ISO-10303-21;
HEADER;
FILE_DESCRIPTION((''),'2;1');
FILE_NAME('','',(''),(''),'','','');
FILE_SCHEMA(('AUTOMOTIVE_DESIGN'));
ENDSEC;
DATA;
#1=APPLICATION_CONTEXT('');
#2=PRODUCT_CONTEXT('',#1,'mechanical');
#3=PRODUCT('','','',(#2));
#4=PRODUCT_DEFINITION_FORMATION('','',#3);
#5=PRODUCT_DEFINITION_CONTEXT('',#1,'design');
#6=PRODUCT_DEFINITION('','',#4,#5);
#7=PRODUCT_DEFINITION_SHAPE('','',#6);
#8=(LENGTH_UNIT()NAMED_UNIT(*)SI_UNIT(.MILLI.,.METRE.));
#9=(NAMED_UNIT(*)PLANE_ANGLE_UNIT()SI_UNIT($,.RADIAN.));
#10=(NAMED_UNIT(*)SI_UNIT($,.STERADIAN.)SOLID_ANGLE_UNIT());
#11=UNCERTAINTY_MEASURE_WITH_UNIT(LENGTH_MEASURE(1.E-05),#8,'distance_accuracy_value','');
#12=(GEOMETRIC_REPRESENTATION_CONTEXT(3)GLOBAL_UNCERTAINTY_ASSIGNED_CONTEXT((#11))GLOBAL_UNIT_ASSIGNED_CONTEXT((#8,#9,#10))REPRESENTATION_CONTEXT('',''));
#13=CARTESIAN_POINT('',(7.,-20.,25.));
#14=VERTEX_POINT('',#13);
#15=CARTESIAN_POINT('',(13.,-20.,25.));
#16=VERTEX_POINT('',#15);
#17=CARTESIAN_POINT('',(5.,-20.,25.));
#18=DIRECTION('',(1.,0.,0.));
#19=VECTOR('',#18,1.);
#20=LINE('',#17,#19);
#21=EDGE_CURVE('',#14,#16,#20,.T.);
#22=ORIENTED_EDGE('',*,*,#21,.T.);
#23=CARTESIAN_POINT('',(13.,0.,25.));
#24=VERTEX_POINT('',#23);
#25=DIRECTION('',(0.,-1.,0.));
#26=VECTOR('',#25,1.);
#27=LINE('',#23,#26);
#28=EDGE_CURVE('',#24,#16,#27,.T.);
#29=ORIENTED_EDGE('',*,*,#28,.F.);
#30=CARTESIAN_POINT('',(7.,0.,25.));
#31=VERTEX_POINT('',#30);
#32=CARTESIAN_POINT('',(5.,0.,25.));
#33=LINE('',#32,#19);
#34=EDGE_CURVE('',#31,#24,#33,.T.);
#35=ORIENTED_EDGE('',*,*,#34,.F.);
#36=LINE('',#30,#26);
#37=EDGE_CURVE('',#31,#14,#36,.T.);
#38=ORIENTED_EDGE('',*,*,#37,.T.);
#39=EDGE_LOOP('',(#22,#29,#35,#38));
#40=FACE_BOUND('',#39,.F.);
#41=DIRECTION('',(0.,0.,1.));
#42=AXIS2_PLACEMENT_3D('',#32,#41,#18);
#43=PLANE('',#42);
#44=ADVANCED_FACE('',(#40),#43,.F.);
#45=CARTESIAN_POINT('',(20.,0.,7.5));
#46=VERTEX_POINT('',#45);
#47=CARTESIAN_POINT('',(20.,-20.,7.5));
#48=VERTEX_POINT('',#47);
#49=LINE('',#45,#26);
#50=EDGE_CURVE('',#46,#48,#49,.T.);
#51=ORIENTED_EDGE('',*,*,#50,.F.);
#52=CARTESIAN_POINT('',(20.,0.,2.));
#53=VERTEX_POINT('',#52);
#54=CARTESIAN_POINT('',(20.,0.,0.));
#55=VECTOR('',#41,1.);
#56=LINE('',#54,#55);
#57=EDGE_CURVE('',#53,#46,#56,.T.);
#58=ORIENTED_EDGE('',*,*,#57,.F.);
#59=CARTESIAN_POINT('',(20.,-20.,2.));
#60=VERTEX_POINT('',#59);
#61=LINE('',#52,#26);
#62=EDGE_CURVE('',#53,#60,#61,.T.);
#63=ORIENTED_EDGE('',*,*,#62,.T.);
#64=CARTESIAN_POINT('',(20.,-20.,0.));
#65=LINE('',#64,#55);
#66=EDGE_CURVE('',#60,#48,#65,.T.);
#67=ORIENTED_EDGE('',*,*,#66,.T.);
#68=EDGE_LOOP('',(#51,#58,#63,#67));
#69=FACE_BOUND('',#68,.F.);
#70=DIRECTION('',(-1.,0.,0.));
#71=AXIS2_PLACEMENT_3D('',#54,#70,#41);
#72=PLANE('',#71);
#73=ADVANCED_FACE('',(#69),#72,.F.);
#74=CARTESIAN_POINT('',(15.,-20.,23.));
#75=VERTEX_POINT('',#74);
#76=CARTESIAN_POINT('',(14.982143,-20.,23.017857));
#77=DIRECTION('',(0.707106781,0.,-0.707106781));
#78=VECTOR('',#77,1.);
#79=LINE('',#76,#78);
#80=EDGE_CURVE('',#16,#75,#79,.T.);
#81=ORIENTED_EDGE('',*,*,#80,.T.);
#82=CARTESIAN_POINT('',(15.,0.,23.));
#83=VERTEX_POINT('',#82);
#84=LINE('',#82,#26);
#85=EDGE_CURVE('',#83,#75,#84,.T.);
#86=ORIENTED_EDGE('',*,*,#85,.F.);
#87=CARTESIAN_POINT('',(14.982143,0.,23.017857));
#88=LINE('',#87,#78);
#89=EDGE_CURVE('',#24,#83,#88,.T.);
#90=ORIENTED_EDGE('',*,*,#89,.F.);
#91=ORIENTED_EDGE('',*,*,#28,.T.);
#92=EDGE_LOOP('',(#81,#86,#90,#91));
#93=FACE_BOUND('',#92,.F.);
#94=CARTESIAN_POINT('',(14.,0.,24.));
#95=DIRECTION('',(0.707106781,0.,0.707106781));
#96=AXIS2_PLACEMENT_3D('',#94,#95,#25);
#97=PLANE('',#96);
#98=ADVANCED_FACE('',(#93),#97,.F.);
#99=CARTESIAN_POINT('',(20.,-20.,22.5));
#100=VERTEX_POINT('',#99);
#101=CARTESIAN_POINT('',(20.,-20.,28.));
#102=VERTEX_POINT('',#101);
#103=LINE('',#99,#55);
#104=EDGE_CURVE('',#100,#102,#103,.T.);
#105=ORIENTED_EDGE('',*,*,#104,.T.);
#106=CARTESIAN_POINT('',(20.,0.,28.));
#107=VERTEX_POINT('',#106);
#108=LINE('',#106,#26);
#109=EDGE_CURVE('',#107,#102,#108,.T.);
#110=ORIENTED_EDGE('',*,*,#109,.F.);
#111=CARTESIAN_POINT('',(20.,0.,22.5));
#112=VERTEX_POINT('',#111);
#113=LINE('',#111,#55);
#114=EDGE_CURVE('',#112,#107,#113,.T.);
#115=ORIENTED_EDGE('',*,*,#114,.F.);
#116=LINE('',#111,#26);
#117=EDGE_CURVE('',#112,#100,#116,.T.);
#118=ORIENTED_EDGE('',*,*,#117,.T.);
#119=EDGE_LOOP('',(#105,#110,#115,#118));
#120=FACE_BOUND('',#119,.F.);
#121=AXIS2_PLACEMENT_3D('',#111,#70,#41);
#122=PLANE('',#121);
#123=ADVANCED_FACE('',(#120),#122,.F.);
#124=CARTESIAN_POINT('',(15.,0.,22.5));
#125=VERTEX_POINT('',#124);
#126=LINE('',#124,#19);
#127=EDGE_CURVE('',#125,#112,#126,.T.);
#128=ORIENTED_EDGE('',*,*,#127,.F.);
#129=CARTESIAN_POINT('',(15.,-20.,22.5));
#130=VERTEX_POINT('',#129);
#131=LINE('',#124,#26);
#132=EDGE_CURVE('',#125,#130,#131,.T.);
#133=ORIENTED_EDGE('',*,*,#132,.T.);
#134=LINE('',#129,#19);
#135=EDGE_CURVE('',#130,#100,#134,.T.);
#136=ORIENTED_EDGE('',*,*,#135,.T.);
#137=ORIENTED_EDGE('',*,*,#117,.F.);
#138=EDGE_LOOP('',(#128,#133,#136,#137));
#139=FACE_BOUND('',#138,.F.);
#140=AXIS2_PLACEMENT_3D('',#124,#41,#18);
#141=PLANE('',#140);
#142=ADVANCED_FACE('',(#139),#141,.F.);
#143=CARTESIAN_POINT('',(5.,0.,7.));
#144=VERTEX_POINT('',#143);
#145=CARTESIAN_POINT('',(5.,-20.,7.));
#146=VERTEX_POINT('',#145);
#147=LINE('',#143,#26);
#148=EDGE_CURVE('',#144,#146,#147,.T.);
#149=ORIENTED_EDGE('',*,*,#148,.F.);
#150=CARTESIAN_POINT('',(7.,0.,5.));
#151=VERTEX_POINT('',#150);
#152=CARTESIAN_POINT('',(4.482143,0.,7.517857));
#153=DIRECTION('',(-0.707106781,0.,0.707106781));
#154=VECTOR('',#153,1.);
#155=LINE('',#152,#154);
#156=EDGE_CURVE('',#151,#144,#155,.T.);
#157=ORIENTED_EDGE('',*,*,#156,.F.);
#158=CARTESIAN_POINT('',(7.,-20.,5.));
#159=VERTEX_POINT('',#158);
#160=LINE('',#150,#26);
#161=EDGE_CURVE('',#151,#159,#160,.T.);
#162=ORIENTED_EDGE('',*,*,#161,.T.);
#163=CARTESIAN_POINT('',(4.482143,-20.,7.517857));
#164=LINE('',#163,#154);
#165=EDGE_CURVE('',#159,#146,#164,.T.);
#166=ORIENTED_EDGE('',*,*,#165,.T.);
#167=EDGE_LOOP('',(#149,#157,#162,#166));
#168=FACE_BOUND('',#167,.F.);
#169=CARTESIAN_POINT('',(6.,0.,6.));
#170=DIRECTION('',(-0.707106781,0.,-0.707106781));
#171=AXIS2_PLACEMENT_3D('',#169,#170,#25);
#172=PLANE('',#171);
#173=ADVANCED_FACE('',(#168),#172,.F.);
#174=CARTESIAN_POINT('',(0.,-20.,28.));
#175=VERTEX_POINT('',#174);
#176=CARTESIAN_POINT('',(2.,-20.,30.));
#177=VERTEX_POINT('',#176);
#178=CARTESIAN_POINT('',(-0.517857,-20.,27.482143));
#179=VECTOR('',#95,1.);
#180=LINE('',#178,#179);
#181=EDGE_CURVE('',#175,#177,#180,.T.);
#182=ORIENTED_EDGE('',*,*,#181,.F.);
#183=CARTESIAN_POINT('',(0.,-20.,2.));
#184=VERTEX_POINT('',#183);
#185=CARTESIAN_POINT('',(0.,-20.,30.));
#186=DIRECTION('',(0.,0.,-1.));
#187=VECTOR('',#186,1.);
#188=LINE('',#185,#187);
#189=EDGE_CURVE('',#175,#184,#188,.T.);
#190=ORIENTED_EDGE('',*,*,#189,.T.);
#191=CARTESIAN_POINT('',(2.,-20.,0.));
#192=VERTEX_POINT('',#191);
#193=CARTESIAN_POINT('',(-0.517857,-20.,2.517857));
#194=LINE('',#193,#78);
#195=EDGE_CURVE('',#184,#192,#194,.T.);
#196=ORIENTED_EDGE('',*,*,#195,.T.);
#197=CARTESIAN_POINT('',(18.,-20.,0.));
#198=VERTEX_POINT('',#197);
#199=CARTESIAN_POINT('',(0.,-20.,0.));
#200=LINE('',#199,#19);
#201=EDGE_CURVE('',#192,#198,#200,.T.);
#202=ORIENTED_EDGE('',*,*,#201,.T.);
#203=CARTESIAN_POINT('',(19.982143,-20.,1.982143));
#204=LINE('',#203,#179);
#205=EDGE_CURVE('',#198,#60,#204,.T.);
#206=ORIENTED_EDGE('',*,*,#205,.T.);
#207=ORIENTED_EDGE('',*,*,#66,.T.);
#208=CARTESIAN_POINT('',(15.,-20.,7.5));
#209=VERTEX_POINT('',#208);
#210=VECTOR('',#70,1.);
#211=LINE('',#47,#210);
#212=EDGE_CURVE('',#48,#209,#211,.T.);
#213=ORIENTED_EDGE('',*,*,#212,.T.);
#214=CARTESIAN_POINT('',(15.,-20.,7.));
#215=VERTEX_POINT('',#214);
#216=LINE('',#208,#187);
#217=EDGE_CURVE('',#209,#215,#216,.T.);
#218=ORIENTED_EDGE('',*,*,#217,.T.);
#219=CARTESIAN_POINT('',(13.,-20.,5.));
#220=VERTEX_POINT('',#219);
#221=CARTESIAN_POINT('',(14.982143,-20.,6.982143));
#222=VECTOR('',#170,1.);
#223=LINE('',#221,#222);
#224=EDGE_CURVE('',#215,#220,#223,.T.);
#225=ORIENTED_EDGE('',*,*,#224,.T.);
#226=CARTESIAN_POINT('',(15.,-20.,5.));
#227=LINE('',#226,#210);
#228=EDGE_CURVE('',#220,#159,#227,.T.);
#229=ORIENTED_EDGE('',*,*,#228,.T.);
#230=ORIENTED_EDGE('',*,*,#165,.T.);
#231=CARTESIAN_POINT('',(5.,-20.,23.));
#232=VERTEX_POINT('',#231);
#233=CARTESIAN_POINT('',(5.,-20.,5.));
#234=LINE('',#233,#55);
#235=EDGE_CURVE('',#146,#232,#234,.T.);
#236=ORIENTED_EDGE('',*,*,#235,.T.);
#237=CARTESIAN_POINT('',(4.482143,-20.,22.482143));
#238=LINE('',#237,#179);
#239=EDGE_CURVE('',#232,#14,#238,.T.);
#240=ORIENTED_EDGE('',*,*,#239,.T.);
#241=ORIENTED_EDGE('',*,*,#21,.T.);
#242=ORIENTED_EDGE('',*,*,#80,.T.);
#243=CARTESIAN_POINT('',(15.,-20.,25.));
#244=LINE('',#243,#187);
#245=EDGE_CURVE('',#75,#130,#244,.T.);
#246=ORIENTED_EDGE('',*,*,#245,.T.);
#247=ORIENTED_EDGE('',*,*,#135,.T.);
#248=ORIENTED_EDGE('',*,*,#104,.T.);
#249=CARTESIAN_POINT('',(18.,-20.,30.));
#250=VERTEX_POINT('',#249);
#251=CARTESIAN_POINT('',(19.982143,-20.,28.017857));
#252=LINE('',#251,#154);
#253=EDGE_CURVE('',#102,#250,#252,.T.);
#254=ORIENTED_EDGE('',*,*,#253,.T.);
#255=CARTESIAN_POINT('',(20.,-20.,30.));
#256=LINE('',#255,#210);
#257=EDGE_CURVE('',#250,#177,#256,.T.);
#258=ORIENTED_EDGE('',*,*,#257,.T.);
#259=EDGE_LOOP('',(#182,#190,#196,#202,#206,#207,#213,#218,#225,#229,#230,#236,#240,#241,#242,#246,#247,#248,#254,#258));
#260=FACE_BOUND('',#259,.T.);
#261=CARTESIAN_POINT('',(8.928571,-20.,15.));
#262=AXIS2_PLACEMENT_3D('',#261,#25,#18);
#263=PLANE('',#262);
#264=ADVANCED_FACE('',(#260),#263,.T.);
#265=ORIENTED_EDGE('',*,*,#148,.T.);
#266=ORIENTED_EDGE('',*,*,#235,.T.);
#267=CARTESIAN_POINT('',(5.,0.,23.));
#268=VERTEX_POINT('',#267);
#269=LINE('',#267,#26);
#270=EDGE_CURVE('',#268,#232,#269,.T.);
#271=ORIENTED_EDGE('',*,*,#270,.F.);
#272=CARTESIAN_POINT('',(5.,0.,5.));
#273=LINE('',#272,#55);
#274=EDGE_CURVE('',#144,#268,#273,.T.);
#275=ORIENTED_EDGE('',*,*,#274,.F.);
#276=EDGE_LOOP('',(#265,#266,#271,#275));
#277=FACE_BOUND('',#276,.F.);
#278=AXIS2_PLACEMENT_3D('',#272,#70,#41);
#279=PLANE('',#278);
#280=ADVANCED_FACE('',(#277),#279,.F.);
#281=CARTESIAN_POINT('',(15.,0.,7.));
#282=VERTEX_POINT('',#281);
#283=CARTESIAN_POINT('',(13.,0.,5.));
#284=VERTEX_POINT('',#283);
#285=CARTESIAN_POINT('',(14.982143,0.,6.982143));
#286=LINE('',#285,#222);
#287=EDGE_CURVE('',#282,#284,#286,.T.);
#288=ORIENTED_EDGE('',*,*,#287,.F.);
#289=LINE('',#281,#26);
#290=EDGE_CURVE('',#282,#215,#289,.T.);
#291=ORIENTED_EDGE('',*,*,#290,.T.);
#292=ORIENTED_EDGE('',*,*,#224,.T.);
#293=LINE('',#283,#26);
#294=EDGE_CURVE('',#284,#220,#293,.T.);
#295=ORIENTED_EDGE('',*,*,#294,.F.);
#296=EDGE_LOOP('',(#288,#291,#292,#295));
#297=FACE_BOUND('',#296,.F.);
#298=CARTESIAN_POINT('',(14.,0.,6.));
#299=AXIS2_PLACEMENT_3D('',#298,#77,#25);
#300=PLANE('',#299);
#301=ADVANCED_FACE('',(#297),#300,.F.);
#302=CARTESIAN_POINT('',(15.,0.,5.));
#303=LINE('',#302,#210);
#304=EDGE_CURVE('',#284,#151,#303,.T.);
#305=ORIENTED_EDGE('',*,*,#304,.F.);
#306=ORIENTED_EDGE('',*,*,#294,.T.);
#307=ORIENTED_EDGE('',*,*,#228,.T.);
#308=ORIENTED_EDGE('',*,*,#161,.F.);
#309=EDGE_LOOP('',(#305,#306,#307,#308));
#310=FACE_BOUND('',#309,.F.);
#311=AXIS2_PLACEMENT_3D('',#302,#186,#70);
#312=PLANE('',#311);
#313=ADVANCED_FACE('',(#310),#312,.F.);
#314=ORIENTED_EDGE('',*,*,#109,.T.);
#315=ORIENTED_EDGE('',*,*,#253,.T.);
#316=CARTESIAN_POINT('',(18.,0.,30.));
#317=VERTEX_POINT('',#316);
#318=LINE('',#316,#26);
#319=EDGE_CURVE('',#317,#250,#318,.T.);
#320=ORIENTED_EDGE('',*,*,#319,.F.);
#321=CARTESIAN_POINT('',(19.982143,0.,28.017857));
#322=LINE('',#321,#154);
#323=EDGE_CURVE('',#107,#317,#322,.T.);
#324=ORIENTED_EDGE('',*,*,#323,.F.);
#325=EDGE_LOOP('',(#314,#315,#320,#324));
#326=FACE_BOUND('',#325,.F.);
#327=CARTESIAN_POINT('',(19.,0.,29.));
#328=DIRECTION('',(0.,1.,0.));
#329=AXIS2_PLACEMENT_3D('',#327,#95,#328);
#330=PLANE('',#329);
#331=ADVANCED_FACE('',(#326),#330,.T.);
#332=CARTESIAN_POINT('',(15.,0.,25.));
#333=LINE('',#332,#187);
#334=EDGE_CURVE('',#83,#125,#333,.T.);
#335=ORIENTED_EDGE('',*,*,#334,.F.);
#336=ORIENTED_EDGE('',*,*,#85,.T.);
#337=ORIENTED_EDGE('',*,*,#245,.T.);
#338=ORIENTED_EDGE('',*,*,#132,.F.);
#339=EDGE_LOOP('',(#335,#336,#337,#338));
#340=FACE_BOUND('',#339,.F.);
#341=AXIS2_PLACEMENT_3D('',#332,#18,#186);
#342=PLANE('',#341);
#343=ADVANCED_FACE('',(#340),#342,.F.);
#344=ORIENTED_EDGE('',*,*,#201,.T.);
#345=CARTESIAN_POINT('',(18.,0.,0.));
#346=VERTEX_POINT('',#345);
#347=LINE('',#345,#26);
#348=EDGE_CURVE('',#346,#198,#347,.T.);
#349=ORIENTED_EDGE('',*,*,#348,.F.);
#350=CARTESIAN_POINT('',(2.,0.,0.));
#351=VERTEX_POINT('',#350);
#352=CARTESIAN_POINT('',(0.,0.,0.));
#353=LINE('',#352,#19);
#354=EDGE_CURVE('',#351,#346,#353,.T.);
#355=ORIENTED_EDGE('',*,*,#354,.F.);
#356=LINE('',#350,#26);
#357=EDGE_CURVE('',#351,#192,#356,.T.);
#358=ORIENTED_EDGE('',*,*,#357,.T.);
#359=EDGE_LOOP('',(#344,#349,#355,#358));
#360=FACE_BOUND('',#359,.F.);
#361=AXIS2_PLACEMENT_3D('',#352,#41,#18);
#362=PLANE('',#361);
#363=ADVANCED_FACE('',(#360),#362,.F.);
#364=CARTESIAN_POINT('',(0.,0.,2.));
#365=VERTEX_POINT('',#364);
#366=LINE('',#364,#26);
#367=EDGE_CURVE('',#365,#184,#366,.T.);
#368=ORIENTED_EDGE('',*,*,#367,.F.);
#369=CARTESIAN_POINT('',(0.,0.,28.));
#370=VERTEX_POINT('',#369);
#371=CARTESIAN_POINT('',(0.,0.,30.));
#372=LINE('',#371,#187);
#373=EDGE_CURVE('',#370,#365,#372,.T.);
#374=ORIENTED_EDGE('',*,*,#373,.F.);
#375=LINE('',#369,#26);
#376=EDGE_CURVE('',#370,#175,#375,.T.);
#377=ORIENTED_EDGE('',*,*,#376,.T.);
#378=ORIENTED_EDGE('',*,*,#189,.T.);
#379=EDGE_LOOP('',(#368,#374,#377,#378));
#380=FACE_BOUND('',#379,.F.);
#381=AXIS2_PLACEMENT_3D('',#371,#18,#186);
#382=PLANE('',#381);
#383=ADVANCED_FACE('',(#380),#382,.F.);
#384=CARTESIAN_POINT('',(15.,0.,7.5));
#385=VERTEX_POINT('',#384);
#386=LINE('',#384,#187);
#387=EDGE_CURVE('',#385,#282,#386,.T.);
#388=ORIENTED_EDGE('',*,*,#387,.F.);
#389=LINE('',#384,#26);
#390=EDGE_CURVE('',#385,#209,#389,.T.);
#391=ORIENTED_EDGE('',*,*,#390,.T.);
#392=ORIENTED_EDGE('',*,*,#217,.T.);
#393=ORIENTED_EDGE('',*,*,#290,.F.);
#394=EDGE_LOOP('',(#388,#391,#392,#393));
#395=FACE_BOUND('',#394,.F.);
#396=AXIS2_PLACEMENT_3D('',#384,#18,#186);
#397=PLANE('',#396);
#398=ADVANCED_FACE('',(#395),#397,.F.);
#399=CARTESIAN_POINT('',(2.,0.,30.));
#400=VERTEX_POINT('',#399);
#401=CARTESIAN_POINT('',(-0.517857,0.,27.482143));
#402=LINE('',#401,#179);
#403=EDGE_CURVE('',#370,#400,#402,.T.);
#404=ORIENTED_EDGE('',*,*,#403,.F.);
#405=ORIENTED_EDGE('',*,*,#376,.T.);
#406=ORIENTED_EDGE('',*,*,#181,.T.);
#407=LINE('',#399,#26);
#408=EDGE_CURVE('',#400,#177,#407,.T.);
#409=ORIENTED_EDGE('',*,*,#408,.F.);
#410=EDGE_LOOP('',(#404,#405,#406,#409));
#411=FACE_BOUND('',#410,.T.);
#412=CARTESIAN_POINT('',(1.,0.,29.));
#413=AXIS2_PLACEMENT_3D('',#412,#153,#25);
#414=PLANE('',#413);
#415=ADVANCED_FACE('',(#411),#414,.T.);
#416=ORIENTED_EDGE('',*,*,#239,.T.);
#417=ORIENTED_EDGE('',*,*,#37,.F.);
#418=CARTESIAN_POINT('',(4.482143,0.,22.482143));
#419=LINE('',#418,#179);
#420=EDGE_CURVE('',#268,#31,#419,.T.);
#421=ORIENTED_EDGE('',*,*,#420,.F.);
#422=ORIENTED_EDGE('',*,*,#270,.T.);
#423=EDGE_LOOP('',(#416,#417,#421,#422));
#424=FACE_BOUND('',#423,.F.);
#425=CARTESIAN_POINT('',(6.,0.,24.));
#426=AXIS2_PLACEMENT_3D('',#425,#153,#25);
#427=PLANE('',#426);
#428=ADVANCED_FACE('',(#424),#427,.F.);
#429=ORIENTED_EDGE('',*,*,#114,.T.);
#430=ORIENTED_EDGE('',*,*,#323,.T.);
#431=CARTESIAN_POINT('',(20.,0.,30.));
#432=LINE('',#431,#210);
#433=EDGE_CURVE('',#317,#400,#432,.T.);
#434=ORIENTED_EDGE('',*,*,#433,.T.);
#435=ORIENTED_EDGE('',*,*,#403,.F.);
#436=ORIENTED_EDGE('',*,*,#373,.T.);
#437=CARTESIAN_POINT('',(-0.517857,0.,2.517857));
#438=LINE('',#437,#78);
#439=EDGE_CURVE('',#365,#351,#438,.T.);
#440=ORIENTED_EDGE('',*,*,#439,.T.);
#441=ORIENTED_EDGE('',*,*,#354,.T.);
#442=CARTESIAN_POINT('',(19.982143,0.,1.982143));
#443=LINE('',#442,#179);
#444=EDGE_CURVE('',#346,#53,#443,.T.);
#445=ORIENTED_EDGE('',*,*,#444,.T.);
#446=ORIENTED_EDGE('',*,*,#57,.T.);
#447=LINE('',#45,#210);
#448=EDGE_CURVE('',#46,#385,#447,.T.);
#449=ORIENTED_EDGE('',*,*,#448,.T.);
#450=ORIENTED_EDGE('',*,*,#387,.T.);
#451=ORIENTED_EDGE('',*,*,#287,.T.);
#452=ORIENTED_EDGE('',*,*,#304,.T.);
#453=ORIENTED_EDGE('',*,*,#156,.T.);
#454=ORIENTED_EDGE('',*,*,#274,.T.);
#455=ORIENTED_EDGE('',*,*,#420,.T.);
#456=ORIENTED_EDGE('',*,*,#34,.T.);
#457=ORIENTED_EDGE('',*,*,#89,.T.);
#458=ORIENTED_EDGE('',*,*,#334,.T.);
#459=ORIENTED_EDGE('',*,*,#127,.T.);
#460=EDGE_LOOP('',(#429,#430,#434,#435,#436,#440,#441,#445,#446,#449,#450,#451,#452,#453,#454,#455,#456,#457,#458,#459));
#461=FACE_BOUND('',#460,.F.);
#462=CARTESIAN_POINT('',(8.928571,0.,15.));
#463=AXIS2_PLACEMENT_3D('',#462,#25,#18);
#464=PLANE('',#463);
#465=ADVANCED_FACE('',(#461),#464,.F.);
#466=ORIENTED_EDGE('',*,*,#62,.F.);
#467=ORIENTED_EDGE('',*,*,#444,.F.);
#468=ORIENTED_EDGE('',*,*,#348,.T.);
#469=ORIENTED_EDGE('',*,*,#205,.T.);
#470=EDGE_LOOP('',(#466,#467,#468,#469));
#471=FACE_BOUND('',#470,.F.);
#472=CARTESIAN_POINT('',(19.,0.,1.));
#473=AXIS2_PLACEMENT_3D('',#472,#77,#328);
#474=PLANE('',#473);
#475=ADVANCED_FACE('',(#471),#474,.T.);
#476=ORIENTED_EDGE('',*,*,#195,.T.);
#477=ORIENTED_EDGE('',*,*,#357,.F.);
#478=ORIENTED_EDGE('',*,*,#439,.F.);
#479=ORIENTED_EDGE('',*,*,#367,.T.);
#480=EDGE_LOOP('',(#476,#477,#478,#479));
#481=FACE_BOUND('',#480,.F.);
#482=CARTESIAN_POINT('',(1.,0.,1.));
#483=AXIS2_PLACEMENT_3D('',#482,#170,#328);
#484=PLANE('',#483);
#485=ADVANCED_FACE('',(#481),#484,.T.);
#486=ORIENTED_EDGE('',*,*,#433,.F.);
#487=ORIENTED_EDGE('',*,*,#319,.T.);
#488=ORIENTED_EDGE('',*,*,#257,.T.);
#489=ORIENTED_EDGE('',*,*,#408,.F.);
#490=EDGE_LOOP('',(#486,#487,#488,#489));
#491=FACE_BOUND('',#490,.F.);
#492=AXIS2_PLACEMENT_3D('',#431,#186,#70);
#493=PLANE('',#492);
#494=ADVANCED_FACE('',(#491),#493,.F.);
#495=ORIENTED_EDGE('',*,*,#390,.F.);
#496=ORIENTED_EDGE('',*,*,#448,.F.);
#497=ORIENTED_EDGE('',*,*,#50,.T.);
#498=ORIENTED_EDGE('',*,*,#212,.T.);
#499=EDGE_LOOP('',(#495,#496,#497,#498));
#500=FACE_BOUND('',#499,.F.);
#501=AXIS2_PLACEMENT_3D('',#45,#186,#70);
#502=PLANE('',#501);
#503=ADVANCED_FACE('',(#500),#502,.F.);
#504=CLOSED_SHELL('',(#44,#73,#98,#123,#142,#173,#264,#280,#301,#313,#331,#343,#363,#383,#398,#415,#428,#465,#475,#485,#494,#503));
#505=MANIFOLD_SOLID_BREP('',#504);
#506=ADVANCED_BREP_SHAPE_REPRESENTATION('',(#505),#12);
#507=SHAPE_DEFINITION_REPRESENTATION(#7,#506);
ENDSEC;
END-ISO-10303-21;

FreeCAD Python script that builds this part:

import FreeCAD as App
import Part
import Sketcher
from FreeCAD import Vector


def edges_at(feature, points):
    """Names of the edges that pass closest to the given points."""
    edges = feature.Shape.Edges
    near = lambda p: min(range(len(edges)), key=lambda i: edges[i].distToShape(Part.Vertex(*p))[0])
    return sorted({f"Edge{near(p) + 1}" for p in points})


def add_polygon(sketch, points):
    """Adds a closed chain of lines whose ends are joined by coincident constraints."""
    first, n = sketch.GeometryCount, len(points)
    for a, b in zip(points, points[1:] + points[:1]):
        sketch.addGeometry(Part.LineSegment(App.Vector(*a, 0), App.Vector(*b, 0)), False)
    for i in range(n):
        sketch.addConstraint(Sketcher.Constraint("Coincident", first + i, 2, first + (i + 1) % n, 1))

doc = App.newDocument("Part")
body = doc.addObject("PartDesign::Body", "Body")

sketch1 = doc.addObject("Sketcher::SketchObject", "Sketch")
body.addObject(sketch1)
sketch1.AttachmentSupport = (doc.XZ_Plane, [""])
sketch1.MapMode = "FlatFace"
add_polygon(sketch1, [(0, 30), (0, 0), (20, 0), (20, 7.5), (15, 7.5), (15, 5), (5, 5), (5, 25), (15, 25), (15, 22.5), (20, 22.5), (20, 30)])
sketch1.addConstraint(Sketcher.Constraint("Vertical", 0))
sketch1.addConstraint(Sketcher.Constraint("Horizontal", 1))
sketch1.addConstraint(Sketcher.Constraint("Vertical", 2))
sketch1.addConstraint(Sketcher.Constraint("Horizontal", 3))
sketch1.addConstraint(Sketcher.Constraint("Vertical", 4))
sketch1.addConstraint(Sketcher.Constraint("Horizontal", 5))
sketch1.addConstraint(Sketcher.Constraint("Vertical", 6))
sketch1.addConstraint(Sketcher.Constraint("Horizontal", 7))
sketch1.addConstraint(Sketcher.Constraint("Vertical", 8))
sketch1.addConstraint(Sketcher.Constraint("Horizontal", 9))
sketch1.addConstraint(Sketcher.Constraint("Vertical", 10))
sketch1.addConstraint(Sketcher.Constraint("Horizontal", 11))
sketch1.addConstraint(Sketcher.Constraint("Coincident", 0, 2, -1, 1))
sketch1.addConstraint(Sketcher.Constraint("Vertical", 4, 2, 7, 2))
sketch1.addConstraint(Sketcher.Constraint("Vertical", 2, 2, 9, 2))
sketch1.addConstraint(Sketcher.Constraint("Equal", 11, 6))
sketch1.addConstraint(Sketcher.Constraint("Equal", 4, 8))
sketch1.addConstraint(Sketcher.Constraint("Equal", 2, 10))
sketch1.addConstraint(Sketcher.Constraint("DistanceX", 1, 1, 1, 2, 20.0))
sketch1.addConstraint(Sketcher.Constraint("DistanceX", 3, 2, 3, 1, 5.0))
sketch1.addConstraint(Sketcher.Constraint("DistanceX", 5, 2, 5, 1, 10.0))
sketch1.addConstraint(Sketcher.Constraint("DistanceY", 0, 2, 0, 1, 30.0))
sketch1.addConstraint(Sketcher.Constraint("DistanceY", 2, 1, 2, 2, 7.5))
pad1 = doc.addObject("PartDesign::Pad", "Pad")
body.addObject(pad1)
pad1.Profile = sketch1
pad1.Length = 20
doc.recompute()

chamfer = doc.addObject("PartDesign::Chamfer", "Chamfer")
body.addObject(chamfer)
chamfer.Base = (pad1, edges_at(pad1, [
    (20, -10, 30),
    (0, -10, 30),
    (20, -10, 0),
    (0, -10, 0),
    (5, -10, 25),
    (5, -10, 5),
    (15, -10, 25),
    (15, -10, 5),
]))
chamfer.Size = 2

doc.recompute()
